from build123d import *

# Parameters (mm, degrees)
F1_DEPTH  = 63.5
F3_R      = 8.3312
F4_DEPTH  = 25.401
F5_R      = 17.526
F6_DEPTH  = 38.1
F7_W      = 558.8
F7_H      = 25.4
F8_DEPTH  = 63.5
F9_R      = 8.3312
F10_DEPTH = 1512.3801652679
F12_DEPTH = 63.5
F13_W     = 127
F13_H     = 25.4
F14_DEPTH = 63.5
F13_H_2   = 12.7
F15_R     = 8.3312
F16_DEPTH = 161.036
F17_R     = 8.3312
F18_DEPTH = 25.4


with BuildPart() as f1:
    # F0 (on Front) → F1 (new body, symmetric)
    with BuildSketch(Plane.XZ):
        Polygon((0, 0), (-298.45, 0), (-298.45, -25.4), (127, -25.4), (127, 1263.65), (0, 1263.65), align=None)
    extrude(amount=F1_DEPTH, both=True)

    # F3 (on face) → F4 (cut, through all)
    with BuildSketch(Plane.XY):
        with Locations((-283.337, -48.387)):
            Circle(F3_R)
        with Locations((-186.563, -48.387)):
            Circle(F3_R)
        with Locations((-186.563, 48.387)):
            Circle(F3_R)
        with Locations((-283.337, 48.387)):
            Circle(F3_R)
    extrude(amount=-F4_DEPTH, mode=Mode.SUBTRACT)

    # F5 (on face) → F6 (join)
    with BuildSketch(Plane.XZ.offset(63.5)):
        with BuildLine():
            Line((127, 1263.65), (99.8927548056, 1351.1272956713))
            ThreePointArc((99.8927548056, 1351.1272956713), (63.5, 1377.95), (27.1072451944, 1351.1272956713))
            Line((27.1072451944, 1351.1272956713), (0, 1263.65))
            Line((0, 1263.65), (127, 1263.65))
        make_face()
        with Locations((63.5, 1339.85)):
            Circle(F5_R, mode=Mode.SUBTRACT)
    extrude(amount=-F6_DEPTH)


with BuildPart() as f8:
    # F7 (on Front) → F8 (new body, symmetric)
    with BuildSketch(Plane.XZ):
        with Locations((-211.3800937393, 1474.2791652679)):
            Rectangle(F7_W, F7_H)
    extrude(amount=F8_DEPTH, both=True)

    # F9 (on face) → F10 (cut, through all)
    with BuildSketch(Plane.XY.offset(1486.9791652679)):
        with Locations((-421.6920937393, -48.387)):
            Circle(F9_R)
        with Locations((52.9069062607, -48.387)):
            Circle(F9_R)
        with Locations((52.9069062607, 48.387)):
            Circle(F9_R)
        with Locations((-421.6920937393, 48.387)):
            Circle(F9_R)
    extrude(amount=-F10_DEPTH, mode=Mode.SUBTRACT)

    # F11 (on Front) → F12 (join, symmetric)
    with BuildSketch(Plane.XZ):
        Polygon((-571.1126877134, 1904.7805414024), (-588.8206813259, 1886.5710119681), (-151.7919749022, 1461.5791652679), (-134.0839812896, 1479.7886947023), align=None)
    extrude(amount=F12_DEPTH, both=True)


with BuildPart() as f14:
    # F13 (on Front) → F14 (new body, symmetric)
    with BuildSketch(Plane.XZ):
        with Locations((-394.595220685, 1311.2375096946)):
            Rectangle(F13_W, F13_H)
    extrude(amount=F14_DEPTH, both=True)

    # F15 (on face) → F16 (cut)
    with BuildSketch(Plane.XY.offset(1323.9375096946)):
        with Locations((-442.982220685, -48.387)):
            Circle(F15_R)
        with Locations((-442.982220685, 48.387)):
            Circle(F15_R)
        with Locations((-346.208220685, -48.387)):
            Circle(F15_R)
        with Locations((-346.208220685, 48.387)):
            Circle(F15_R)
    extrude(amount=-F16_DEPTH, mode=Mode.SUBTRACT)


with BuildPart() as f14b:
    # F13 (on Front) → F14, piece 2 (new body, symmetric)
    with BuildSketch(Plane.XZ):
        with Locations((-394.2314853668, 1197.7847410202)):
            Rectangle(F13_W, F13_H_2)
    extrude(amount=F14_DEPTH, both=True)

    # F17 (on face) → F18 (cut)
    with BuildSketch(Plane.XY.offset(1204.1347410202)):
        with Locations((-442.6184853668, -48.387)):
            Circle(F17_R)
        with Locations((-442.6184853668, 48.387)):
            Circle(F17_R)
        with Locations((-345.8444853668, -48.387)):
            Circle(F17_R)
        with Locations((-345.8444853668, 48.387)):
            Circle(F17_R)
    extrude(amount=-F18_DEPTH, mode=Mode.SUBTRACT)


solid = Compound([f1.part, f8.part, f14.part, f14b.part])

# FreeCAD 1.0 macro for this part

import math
import FreeCAD as App
import Part
import Sketcher
Q = App.Units.Quantity


def add_polygon(sketch, points):
    """Adds a closed chain of lines whose ends are joined by coincident constraints."""
    first, n = sketch.GeometryCount, len(points)
    for a, b in zip(points, points[1:] + points[:1]):
        sketch.addGeometry(Part.LineSegment(App.Vector(*a, 0), App.Vector(*b, 0)), False)
    for i in range(n):
        sketch.addConstraint(Sketcher.Constraint("Coincident", first + i, 2, first + (i + 1) % n, 1))

doc = App.newDocument("Part")
body = doc.addObject("PartDesign::Body", "Body")

sketch1 = body.newObject("Sketcher::SketchObject", "Sketch")
sketch1.AttachmentSupport = (doc.getObject("XZ_Plane"), [""])
sketch1.MapMode = "FlatFace"
add_polygon(sketch1, [(0, 0), (-298, 0), (-298, -25), (127, -25), (127, 1264), (0, 1264)])
sketch1.addConstraint([
    Sketcher.Constraint("Horizontal", 0),
    Sketcher.Constraint("Vertical", 1),
    Sketcher.Constraint("Horizontal", 2),
    Sketcher.Constraint("Vertical", 3),
    Sketcher.Constraint("Horizontal", 4),
    Sketcher.Constraint("Vertical", 5),
    Sketcher.Constraint("Coincident", 5, 2, -1, 1),
    Sketcher.Constraint("DistanceX", 4, 2, 4, 1, Q("5 in")),
    Sketcher.Constraint("DistanceY", 1, 2, 1, 1, Q("1 in")),
    Sketcher.Constraint("DistanceX", 0, 2, 0, 1, Q("11.75 in")),
    Sketcher.Constraint("DistanceY", 3, 1, 3, 2, Q("50.75 in")),
])
pad1 = body.newObject("PartDesign::Pad", "Pad")
pad1.Profile = sketch1
pad1.Length = Q("5 in")
pad1.Midplane = True

sketch2 = body.newObject("Sketcher::SketchObject", "Sketch001")
sketch2.AttachmentSupport = (doc.getObject("XY_Plane"), [""])
sketch2.MapMode = "FlatFace"
sketch2.addGeometry([
    Part.Circle(App.Vector(-283, -48, 0), App.Vector(0, 0, 1), 8),
    Part.Circle(App.Vector(-187, -48, 0), App.Vector(0, 0, 1), 8),
    Part.Circle(App.Vector(-187, 48, 0), App.Vector(0, 0, 1), 8),
    Part.Circle(App.Vector(-283, 48, 0), App.Vector(0, 0, 1), 8),
], False)
sketch2.addConstraint([
    Sketcher.Constraint("Equal", 0, 1),
    Sketcher.Constraint("Equal", 1, 2),
    Sketcher.Constraint("Equal", 2, 3),
    Sketcher.Constraint("Symmetric", 1, 3, 2, 3, -1),
    Sketcher.Constraint("Symmetric", 0, 3, 3, 3, -1),
    Sketcher.Constraint("Horizontal", 0, 3, 1, 3),
    Sketcher.Constraint("Diameter", 0, Q("0.656 in")),
    Sketcher.Constraint("DistanceX", 0, 3, 1, 3, Q("3.81 in")),
    Sketcher.Constraint("DistanceY", 1, 3, 2, 3, Q("3.81 in")),
    Sketcher.Constraint("DistanceX", 0, 3, -1, 1, Q("11.155 in")),
])
pocket1 = body.newObject("PartDesign::Pocket", "Pocket")
pocket1.Profile = sketch2
pocket1.Type = "ThroughAll"

sketch3 = body.newObject("Sketcher::SketchObject", "Sketch002")
sketch3.AttachmentSupport = (doc.getObject("XZ_Plane"), [""])
sketch3.MapMode = "FlatFace"
sketch3.AttachmentOffset = App.Placement(App.Vector(0, 0, 2.5 * 25.4), App.Rotation())
sketch3.addGeometry([
    Part.LineSegment(App.Vector(127, 1264, 0), App.Vector(100, 1351, 0)),
    Part.ArcOfCircle(Part.Circle(App.Vector(64, 1340, 0), App.Vector(0, 0, 1), 38), math.radians(17), math.radians(163)),
    Part.LineSegment(App.Vector(27, 1351, 0), App.Vector(0, 1264, 0)),
    Part.LineSegment(App.Vector(0, 1264, 0), App.Vector(127, 1264, 0)),
    Part.Circle(App.Vector(64, 1340, 0), App.Vector(0, 0, 1), 18),
], False)
sketch3.addConstraint([
    Sketcher.Constraint("Tangent", 0, 2, 1, 1),
    Sketcher.Constraint("Tangent", 1, 2, 2, 1),
    Sketcher.Constraint("Coincident", 2, 2, 3, 1),
    Sketcher.Constraint("Coincident", 3, 2, 0, 1),
    Sketcher.Constraint("Horizontal", 3),
    Sketcher.Constraint("Coincident", 4, 3, 1, 3),
    Sketcher.Constraint("PointOnObject", 2, 2, -2),
    Sketcher.Constraint("Horizontal", 0, 2, 1, 2),
    Sketcher.Constraint("Radius", 1, Q("1.5 in")),
    Sketcher.Constraint("Diameter", 4, Q("1.38 in")),
    Sketcher.Constraint("DistanceX", 3, 1, 3, 2, Q("5 in")),
    Sketcher.Constraint("DistanceY", 2, 2, 1, 3, Q("3 in")),
    Sketcher.Constraint("DistanceY", -1, 1, 1, 3, Q("52.75 in")),
])
pad2 = body.newObject("PartDesign::Pad", "Pad001")
pad2.Profile = sketch3
pad2.Length = Q("1.5 in")
pad2.Reversed = True
body2 = doc.addObject("PartDesign::Body", "Body001")

sketch4 = body2.newObject("Sketcher::SketchObject", "Sketch003")
sketch4.AttachmentSupport = (doc.getObject("XZ_Plane001"), [""])
sketch4.MapMode = "FlatFace"
add_polygon(sketch4, [(-491, 1487), (-491, 1462), (68, 1462), (68, 1487)])
sketch4.addConstraint([
    Sketcher.Constraint("Vertical", 0),
    Sketcher.Constraint("Horizontal", 1),
    Sketcher.Constraint("Vertical", 2),
    Sketcher.Constraint("Horizontal", 3),
    Sketcher.Constraint("DistanceX", 1, 1, 1, 2, Q("22 in")),
    Sketcher.Constraint("DistanceY", 0, 2, 0, 1, Q("1 in")),
    Sketcher.Constraint("DistanceX", 0, 2, -1, 1, Q("490.780094 mm")),
    Sketcher.Constraint("DistanceY", -1, 1, 0, 2, Q("1461.579165 mm")),
])
pad3 = body2.newObject("PartDesign::Pad", "Pad002")
pad3.Profile = sketch4
pad3.Length = Q("5 in")
pad3.Midplane = True

sketch5 = body2.newObject("Sketcher::SketchObject", "Sketch004")
sketch5.AttachmentSupport = (doc.getObject("XY_Plane001"), [""])
sketch5.MapMode = "FlatFace"
sketch5.AttachmentOffset = App.Placement(App.Vector(0, 0, 1486.979165), App.Rotation())
sketch5.addGeometry([
    Part.Circle(App.Vector(-422, -48, 0), App.Vector(0, 0, 1), 8),
    Part.Circle(App.Vector(53, -48, 0), App.Vector(0, 0, 1), 8),
    Part.Circle(App.Vector(53, 48, 0), App.Vector(0, 0, 1), 8),
    Part.Circle(App.Vector(-422, 48, 0), App.Vector(0, 0, 1), 8),
], False)
sketch5.addConstraint([
    Sketcher.Constraint("Equal", 0, 1),
    Sketcher.Constraint("Equal", 1, 2),
    Sketcher.Constraint("Equal", 2, 3),
    Sketcher.Constraint("Symmetric", 1, 3, 2, 3, -1),
    Sketcher.Constraint("Symmetric", 0, 3, 3, 3, -1),
    Sketcher.Constraint("Horizontal", 0, 3, 1, 3),
    Sketcher.Constraint("Diameter", 0, Q("0.656 in")),
    Sketcher.Constraint("DistanceY", 1, 3, 2, 3, Q("3.81 in")),
    Sketcher.Constraint("DistanceX", 0, 3, 1, 3, Q("18.685 in")),
    Sketcher.Constraint("DistanceX", 0, 3, -1, 1, Q("421.692094 mm")),
])
pocket2 = body2.newObject("PartDesign::Pocket", "Pocket001")
pocket2.Profile = sketch5
pocket2.Type = "ThroughAll"

sketch6 = body2.newObject("Sketcher::SketchObject", "Sketch005")
sketch6.AttachmentSupport = (doc.getObject("XZ_Plane001"), [""])
sketch6.MapMode = "FlatFace"
add_polygon(sketch6, [(-571, 1905), (-589, 1887), (-152, 1462), (-134, 1480)])
sketch6.addConstraint([
    Sketcher.Constraint("Perpendicular", 0, 1),
    Sketcher.Constraint("Perpendicular", 1, 2),
    Sketcher.Constraint("Perpendicular", 2, 3),
    Sketcher.Constraint("Distance", 0, Q("1 in")),
    Sketcher.Constraint("Distance", 1, Q("24 in")),
    Sketcher.Constraint("Angle", 0, Q("-134.2 deg")),
    Sketcher.Constraint("DistanceX", 0, 2, -1, 1, Q("588.820681 mm")),
    Sketcher.Constraint("DistanceY", -1, 1, 0, 2, Q("1886.571012 mm")),
])
pad4 = body2.newObject("PartDesign::Pad", "Pad003")
pad4.Profile = sketch6
pad4.Length = Q("5 in")
pad4.Midplane = True
body3 = doc.addObject("PartDesign::Body", "Body002")

sketch7 = body3.newObject("Sketcher::SketchObject", "Sketch006")
sketch7.AttachmentSupport = (doc.getObject("XZ_Plane002"), [""])
sketch7.MapMode = "FlatFace"
add_polygon(sketch7, [(-458, 1324), (-458, 1299), (-331, 1299), (-331, 1324)])
sketch7.addConstraint([
    Sketcher.Constraint("Vertical", 0),
    Sketcher.Constraint("Horizontal", 1),
    Sketcher.Constraint("Vertical", 2),
    Sketcher.Constraint("Horizontal", 3),
    Sketcher.Constraint("DistanceX", 1, 1, 1, 2, Q("5 in")),
    Sketcher.Constraint("DistanceY", 0, 2, 0, 1, Q("1 in")),
    Sketcher.Constraint("DistanceX", 0, 2, -1, 1, Q("458.095221 mm")),
    Sketcher.Constraint("DistanceY", -1, 1, 0, 2, Q("1298.53751 mm")),
])
pad5 = body3.newObject("PartDesign::Pad", "Pad004")
pad5.Profile = sketch7
pad5.Length = Q("5 in")
pad5.Midplane = True

sketch8 = body3.newObject("Sketcher::SketchObject", "Sketch007")
sketch8.AttachmentSupport = (doc.getObject("XY_Plane002"), [""])
sketch8.MapMode = "FlatFace"
sketch8.AttachmentOffset = App.Placement(App.Vector(0, 0, 1323.93751), App.Rotation())
sketch8.addGeometry([
    Part.Circle(App.Vector(-443, -48, 0), App.Vector(0, 0, 1), 8),
    Part.Circle(App.Vector(-443, 48, 0), App.Vector(0, 0, 1), 8),
    Part.Circle(App.Vector(-346, -48, 0), App.Vector(0, 0, 1), 8),
    Part.Circle(App.Vector(-346, 48, 0), App.Vector(0, 0, 1), 8),
], False)
sketch8.addConstraint([
    Sketcher.Constraint("Equal", 0, 1),
    Sketcher.Constraint("Equal", 1, 2),
    Sketcher.Constraint("Equal", 2, 3),
    Sketcher.Constraint("Symmetric", 0, 3, 1, 3, -1),
    Sketcher.Constraint("Symmetric", 2, 3, 3, 3, -1),
    Sketcher.Constraint("Horizontal", 0, 3, 2, 3),
    Sketcher.Constraint("Diameter", 0, Q("0.656 in")),
    Sketcher.Constraint("DistanceY", 0, 3, 1, 3, Q("3.81 in")),
    Sketcher.Constraint("DistanceX", 0, 3, 2, 3, Q("3.81 in")),
    Sketcher.Constraint("DistanceX", 0, 3, -1, 1, Q("442.982221 mm")),
])
pocket3 = body3.newObject("PartDesign::Pocket", "Pocket002")
pocket3.Profile = sketch8
pocket3.Length = Q("6.34 in")
body4 = doc.addObject("PartDesign::Body", "Body003")

sketch9 = body4.newObject("Sketcher::SketchObject", "Sketch008")
sketch9.AttachmentSupport = (doc.getObject("XZ_Plane003"), [""])
sketch9.MapMode = "FlatFace"
add_polygon(sketch9, [(-458, 1204), (-458, 1191), (-331, 1191), (-331, 1204)])
sketch9.addConstraint([
    Sketcher.Constraint("Vertical", 0),
    Sketcher.Constraint("Horizontal", 1),
    Sketcher.Constraint("Vertical", 2),
    Sketcher.Constraint("Horizontal", 3),
    Sketcher.Constraint("DistanceX", 1, 1, 1, 2, Q("5 in")),
    Sketcher.Constraint("DistanceY", 0, 2, 0, 1, Q("0.5 in")),
    Sketcher.Constraint("DistanceY", -1, 1, 0, 2, Q("1191.434741 mm")),
    Sketcher.Constraint("DistanceX", 0, 2, -1, 1, Q("457.731485 mm")),
])
pad6 = body4.newObject("PartDesign::Pad", "Pad005")
pad6.Profile = sketch9
pad6.Length = Q("5 in")
pad6.Midplane = True

sketch10 = body4.newObject("Sketcher::SketchObject", "Sketch009")
sketch10.AttachmentSupport = (doc.getObject("XY_Plane003"), [""])
sketch10.MapMode = "FlatFace"
sketch10.AttachmentOffset = App.Placement(App.Vector(0, 0, 1204.134741), App.Rotation())
sketch10.addGeometry([
    Part.Circle(App.Vector(-443, -48, 0), App.Vector(0, 0, 1), 8),
    Part.Circle(App.Vector(-443, 48, 0), App.Vector(0, 0, 1), 8),
    Part.Circle(App.Vector(-346, -48, 0), App.Vector(0, 0, 1), 8),
    Part.Circle(App.Vector(-346, 48, 0), App.Vector(0, 0, 1), 8),
], False)
sketch10.addConstraint([
    Sketcher.Constraint("Equal", 0, 1),
    Sketcher.Constraint("Equal", 1, 2),
    Sketcher.Constraint("Equal", 2, 3),
    Sketcher.Constraint("Symmetric", 0, 3, 1, 3, -1),
    Sketcher.Constraint("Symmetric", 2, 3, 3, 3, -1),
    Sketcher.Constraint("Horizontal", 0, 3, 2, 3),
    Sketcher.Constraint("Diameter", 0, Q("0.656 in")),
    Sketcher.Constraint("DistanceY", 0, 3, 1, 3, Q("3.81 in")),
    Sketcher.Constraint("DistanceX", 0, 3, 2, 3, Q("3.81 in")),
    Sketcher.Constraint("DistanceX", 0, 3, -1, 1, Q("442.618485 mm")),
])
pocket4 = body4.newObject("PartDesign::Pocket", "Pocket003")
pocket4.Profile = sketch10
pocket4.Length = Q("1 in")

doc.recompute()
